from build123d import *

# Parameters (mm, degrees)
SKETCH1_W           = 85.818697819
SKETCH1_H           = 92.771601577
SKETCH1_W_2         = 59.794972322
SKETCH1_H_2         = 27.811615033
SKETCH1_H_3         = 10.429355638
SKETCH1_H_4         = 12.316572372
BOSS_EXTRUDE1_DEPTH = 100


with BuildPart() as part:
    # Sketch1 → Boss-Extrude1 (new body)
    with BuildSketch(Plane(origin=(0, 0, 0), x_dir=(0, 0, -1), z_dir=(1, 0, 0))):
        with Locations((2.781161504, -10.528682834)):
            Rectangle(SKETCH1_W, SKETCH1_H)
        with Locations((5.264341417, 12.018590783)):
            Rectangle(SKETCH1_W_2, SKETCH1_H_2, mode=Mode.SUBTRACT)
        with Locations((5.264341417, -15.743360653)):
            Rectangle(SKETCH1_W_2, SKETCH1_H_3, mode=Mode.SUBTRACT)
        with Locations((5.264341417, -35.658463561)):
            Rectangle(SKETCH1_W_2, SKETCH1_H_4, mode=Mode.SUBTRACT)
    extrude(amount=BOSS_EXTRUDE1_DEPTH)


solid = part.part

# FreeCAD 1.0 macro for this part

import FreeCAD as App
import Part
import Sketcher
from FreeCAD import Vector
Q = App.Units.Quantity


def add_polygon(sketch, points):
    """Adds a closed chain of lines whose ends are joined by coincident constraints."""
    first, n = sketch.GeometryCount, len(points)
    for a, b in zip(points, points[1:] + points[:1]):
        sketch.addGeometry(Part.LineSegment(App.Vector(*a, 0), App.Vector(*b, 0)), False)
    for i in range(n):
        sketch.addConstraint(Sketcher.Constraint("Coincident", first + i, 2, first + (i + 1) % n, 1))

doc = App.newDocument("Part")
params = doc.addObject("Spreadsheet::Sheet", "Params")
for row, (alias, value) in enumerate([
    ("pad1_length", "100 mm"),
], start=1):
    params.set(f"A{row}", alias)
    params.set(f"B{row}", "=" + value)
    params.setAlias(f"B{row}", alias)

body = doc.addObject("PartDesign::Body", "Body")

sketch1 = body.newObject("Sketcher::SketchObject", "Sketch")
sketch1.AttachmentSupport = (doc.getObject("YZ_Plane"), [""])
sketch1.MapMode = "FlatFace"
add_polygon(sketch1, [(36, 40), (-57, 40), (-57, -46), (36, -46)])
add_polygon(sketch1, [(-42, -35), (-42, 25), (-30, 25), (-30, -35)])
add_polygon(sketch1, [(-21, -35), (-21, 25), (-11, 25), (-11, -35)])
add_polygon(sketch1, [(-2, -35), (-2, 25), (26, 25), (26, -35)])
sketch1.addConstraint(Sketcher.Constraint("Horizontal", 0))
sketch1.addConstraint(Sketcher.Constraint("Vertical", 1))
sketch1.addConstraint(Sketcher.Constraint("Horizontal", 2))
sketch1.addConstraint(Sketcher.Constraint("Vertical", 3))
sketch1.addConstraint(Sketcher.Constraint("Vertical", 4))
sketch1.addConstraint(Sketcher.Constraint("Horizontal", 5))
sketch1.addConstraint(Sketcher.Constraint("Vertical", 6))
sketch1.addConstraint(Sketcher.Constraint("Horizontal", 7))
sketch1.addConstraint(Sketcher.Constraint("Vertical", 8))
sketch1.addConstraint(Sketcher.Constraint("Horizontal", 9))
sketch1.addConstraint(Sketcher.Constraint("Vertical", 10))
sketch1.addConstraint(Sketcher.Constraint("Horizontal", 11))
sketch1.addConstraint(Sketcher.Constraint("Vertical", 12))
sketch1.addConstraint(Sketcher.Constraint("Horizontal", 13))
sketch1.addConstraint(Sketcher.Constraint("Vertical", 14))
sketch1.addConstraint(Sketcher.Constraint("Horizontal", 15))
sketch1.addConstraint(Sketcher.Constraint("Horizontal", 5, 2, 8, 2))
sketch1.addConstraint(Sketcher.Constraint("Horizontal", 7, 2, 10, 2))
sketch1.addConstraint(Sketcher.Constraint("Horizontal", 9, 2, 12, 2))
sketch1.addConstraint(Sketcher.Constraint("Horizontal", 11, 2, 14, 2))
sketch1.addConstraint(Sketcher.Constraint("DistanceX", 0, 2, 0, 1, Q("92.771602 mm")))
sketch1.addConstraint(Sketcher.Constraint("DistanceX", -1, 1, 13, 2, Q("25.924398 mm")))
sketch1.addConstraint(Sketcher.Constraint("DistanceX", 9, 2, 3, 2, Q("46.385801 mm")))
sketch1.addConstraint(Sketcher.Constraint("DistanceX", 5, 1, 5, 2, Q("12.316572 mm")))
sketch1.addConstraint(Sketcher.Constraint("DistanceX", 9, 1, 9, 2, Q("10.429356 mm")))
sketch1.addConstraint(Sketcher.Constraint("DistanceX", 13, 1, 13, 2, Q("27.811615 mm")))
sketch1.addConstraint(Sketcher.Constraint("DistanceY", 1, 2, 1, 1, Q("85.818698 mm")))
sketch1.addConstraint(Sketcher.Constraint("DistanceY", 4, 1, 4, 2, Q("59.794972 mm")))
sketch1.addConstraint(Sketcher.Constraint("DistanceY", 1, 2, -1, 1, Q("45.69051 mm")))
sketch1.addConstraint(Sketcher.Constraint("DistanceX", 4, 2, -1, 1, Q("41.81675 mm")))
sketch1.addConstraint(Sketcher.Constraint("DistanceX", 8, 2, -1, 1, Q("20.958038 mm")))
sketch1.addConstraint(Sketcher.Constraint("DistanceY", -1, 1, 4, 2, Q("24.633145 mm")))
pad1 = body.newObject("PartDesign::Pad", "Pad")
pad1.Profile = sketch1
pad1.setExpression("Length", "Params.pad1_length")

doc.recompute()
